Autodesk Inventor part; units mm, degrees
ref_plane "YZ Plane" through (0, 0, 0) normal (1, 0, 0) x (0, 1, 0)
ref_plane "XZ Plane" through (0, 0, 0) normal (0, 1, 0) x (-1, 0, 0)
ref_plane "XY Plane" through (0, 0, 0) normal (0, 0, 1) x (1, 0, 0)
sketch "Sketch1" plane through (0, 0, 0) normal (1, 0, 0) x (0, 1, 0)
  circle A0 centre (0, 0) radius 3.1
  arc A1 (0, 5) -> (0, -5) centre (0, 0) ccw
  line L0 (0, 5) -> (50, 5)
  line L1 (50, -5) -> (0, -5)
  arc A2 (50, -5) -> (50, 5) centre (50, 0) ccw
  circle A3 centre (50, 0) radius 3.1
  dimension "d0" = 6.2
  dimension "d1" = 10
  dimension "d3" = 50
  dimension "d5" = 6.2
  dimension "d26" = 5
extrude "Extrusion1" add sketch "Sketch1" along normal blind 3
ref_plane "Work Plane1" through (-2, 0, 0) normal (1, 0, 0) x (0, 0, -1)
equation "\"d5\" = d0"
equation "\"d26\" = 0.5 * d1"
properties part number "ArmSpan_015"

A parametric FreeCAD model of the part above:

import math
import FreeCAD as App
import Part
import Sketcher
from FreeCAD import Vector

doc = App.newDocument("Part")
body = doc.addObject("PartDesign::Body", "Body")

sketch1 = doc.addObject("Sketcher::SketchObject", "Sketch")
body.addObject(sketch1)
sketch1.AttachmentSupport = (doc.YZ_Plane, [""])
sketch1.MapMode = "FlatFace"
sketch1.addGeometry(Part.LineSegment(Vector(50, 5, 0), Vector(0, 5, 0)), False)
sketch1.addGeometry(Part.ArcOfCircle(Part.Circle(Vector(0, 0, 0), Vector(0, 0, 1), 5), math.radians(90), math.radians(270)), False)
sketch1.addGeometry(Part.LineSegment(Vector(0, -5, 0), Vector(50, -5, 0)), False)
sketch1.addGeometry(Part.ArcOfCircle(Part.Circle(Vector(50, 0, 0), Vector(0, 0, 1), 5), math.radians(-90), math.radians(90)), False)
sketch1.addGeometry(Part.Circle(Vector(0, 0, 0), Vector(0, 0, 1), 3.1), False)
sketch1.addGeometry(Part.Circle(Vector(50, 0, 0), Vector(0, 0, 1), 3.1), False)
sketch1.addConstraint(Sketcher.Constraint("Tangent", 0, 2, 1, 1))
sketch1.addConstraint(Sketcher.Constraint("Tangent", 1, 2, 2, 1))
sketch1.addConstraint(Sketcher.Constraint("Tangent", 2, 2, 3, 1))
sketch1.addConstraint(Sketcher.Constraint("Tangent", 3, 2, 0, 1))
sketch1.addConstraint(Sketcher.Constraint("Horizontal", 0))
sketch1.addConstraint(Sketcher.Constraint("Horizontal", 2))
sketch1.addConstraint(Sketcher.Constraint("Coincident", 1, 3, -1, 1))
sketch1.addConstraint(Sketcher.Constraint("Coincident", 4, 3, -1, 1))
sketch1.addConstraint(Sketcher.Constraint("Coincident", 5, 3, 3, 3))
sketch1.addConstraint(Sketcher.Constraint("Equal", 4, 5))
sketch1.addConstraint(Sketcher.Constraint("Radius", 1, 5.0))
sketch1.addConstraint(Sketcher.Constraint("Diameter", 4, 6.2))
sketch1.addConstraint(Sketcher.Constraint("DistanceX", 0, 2, 0, 1, 50.0))
pad1 = doc.addObject("PartDesign::Pad", "Pad")
body.addObject(pad1)
pad1.Profile = sketch1
pad1.Length = 3

doc.recompute()
